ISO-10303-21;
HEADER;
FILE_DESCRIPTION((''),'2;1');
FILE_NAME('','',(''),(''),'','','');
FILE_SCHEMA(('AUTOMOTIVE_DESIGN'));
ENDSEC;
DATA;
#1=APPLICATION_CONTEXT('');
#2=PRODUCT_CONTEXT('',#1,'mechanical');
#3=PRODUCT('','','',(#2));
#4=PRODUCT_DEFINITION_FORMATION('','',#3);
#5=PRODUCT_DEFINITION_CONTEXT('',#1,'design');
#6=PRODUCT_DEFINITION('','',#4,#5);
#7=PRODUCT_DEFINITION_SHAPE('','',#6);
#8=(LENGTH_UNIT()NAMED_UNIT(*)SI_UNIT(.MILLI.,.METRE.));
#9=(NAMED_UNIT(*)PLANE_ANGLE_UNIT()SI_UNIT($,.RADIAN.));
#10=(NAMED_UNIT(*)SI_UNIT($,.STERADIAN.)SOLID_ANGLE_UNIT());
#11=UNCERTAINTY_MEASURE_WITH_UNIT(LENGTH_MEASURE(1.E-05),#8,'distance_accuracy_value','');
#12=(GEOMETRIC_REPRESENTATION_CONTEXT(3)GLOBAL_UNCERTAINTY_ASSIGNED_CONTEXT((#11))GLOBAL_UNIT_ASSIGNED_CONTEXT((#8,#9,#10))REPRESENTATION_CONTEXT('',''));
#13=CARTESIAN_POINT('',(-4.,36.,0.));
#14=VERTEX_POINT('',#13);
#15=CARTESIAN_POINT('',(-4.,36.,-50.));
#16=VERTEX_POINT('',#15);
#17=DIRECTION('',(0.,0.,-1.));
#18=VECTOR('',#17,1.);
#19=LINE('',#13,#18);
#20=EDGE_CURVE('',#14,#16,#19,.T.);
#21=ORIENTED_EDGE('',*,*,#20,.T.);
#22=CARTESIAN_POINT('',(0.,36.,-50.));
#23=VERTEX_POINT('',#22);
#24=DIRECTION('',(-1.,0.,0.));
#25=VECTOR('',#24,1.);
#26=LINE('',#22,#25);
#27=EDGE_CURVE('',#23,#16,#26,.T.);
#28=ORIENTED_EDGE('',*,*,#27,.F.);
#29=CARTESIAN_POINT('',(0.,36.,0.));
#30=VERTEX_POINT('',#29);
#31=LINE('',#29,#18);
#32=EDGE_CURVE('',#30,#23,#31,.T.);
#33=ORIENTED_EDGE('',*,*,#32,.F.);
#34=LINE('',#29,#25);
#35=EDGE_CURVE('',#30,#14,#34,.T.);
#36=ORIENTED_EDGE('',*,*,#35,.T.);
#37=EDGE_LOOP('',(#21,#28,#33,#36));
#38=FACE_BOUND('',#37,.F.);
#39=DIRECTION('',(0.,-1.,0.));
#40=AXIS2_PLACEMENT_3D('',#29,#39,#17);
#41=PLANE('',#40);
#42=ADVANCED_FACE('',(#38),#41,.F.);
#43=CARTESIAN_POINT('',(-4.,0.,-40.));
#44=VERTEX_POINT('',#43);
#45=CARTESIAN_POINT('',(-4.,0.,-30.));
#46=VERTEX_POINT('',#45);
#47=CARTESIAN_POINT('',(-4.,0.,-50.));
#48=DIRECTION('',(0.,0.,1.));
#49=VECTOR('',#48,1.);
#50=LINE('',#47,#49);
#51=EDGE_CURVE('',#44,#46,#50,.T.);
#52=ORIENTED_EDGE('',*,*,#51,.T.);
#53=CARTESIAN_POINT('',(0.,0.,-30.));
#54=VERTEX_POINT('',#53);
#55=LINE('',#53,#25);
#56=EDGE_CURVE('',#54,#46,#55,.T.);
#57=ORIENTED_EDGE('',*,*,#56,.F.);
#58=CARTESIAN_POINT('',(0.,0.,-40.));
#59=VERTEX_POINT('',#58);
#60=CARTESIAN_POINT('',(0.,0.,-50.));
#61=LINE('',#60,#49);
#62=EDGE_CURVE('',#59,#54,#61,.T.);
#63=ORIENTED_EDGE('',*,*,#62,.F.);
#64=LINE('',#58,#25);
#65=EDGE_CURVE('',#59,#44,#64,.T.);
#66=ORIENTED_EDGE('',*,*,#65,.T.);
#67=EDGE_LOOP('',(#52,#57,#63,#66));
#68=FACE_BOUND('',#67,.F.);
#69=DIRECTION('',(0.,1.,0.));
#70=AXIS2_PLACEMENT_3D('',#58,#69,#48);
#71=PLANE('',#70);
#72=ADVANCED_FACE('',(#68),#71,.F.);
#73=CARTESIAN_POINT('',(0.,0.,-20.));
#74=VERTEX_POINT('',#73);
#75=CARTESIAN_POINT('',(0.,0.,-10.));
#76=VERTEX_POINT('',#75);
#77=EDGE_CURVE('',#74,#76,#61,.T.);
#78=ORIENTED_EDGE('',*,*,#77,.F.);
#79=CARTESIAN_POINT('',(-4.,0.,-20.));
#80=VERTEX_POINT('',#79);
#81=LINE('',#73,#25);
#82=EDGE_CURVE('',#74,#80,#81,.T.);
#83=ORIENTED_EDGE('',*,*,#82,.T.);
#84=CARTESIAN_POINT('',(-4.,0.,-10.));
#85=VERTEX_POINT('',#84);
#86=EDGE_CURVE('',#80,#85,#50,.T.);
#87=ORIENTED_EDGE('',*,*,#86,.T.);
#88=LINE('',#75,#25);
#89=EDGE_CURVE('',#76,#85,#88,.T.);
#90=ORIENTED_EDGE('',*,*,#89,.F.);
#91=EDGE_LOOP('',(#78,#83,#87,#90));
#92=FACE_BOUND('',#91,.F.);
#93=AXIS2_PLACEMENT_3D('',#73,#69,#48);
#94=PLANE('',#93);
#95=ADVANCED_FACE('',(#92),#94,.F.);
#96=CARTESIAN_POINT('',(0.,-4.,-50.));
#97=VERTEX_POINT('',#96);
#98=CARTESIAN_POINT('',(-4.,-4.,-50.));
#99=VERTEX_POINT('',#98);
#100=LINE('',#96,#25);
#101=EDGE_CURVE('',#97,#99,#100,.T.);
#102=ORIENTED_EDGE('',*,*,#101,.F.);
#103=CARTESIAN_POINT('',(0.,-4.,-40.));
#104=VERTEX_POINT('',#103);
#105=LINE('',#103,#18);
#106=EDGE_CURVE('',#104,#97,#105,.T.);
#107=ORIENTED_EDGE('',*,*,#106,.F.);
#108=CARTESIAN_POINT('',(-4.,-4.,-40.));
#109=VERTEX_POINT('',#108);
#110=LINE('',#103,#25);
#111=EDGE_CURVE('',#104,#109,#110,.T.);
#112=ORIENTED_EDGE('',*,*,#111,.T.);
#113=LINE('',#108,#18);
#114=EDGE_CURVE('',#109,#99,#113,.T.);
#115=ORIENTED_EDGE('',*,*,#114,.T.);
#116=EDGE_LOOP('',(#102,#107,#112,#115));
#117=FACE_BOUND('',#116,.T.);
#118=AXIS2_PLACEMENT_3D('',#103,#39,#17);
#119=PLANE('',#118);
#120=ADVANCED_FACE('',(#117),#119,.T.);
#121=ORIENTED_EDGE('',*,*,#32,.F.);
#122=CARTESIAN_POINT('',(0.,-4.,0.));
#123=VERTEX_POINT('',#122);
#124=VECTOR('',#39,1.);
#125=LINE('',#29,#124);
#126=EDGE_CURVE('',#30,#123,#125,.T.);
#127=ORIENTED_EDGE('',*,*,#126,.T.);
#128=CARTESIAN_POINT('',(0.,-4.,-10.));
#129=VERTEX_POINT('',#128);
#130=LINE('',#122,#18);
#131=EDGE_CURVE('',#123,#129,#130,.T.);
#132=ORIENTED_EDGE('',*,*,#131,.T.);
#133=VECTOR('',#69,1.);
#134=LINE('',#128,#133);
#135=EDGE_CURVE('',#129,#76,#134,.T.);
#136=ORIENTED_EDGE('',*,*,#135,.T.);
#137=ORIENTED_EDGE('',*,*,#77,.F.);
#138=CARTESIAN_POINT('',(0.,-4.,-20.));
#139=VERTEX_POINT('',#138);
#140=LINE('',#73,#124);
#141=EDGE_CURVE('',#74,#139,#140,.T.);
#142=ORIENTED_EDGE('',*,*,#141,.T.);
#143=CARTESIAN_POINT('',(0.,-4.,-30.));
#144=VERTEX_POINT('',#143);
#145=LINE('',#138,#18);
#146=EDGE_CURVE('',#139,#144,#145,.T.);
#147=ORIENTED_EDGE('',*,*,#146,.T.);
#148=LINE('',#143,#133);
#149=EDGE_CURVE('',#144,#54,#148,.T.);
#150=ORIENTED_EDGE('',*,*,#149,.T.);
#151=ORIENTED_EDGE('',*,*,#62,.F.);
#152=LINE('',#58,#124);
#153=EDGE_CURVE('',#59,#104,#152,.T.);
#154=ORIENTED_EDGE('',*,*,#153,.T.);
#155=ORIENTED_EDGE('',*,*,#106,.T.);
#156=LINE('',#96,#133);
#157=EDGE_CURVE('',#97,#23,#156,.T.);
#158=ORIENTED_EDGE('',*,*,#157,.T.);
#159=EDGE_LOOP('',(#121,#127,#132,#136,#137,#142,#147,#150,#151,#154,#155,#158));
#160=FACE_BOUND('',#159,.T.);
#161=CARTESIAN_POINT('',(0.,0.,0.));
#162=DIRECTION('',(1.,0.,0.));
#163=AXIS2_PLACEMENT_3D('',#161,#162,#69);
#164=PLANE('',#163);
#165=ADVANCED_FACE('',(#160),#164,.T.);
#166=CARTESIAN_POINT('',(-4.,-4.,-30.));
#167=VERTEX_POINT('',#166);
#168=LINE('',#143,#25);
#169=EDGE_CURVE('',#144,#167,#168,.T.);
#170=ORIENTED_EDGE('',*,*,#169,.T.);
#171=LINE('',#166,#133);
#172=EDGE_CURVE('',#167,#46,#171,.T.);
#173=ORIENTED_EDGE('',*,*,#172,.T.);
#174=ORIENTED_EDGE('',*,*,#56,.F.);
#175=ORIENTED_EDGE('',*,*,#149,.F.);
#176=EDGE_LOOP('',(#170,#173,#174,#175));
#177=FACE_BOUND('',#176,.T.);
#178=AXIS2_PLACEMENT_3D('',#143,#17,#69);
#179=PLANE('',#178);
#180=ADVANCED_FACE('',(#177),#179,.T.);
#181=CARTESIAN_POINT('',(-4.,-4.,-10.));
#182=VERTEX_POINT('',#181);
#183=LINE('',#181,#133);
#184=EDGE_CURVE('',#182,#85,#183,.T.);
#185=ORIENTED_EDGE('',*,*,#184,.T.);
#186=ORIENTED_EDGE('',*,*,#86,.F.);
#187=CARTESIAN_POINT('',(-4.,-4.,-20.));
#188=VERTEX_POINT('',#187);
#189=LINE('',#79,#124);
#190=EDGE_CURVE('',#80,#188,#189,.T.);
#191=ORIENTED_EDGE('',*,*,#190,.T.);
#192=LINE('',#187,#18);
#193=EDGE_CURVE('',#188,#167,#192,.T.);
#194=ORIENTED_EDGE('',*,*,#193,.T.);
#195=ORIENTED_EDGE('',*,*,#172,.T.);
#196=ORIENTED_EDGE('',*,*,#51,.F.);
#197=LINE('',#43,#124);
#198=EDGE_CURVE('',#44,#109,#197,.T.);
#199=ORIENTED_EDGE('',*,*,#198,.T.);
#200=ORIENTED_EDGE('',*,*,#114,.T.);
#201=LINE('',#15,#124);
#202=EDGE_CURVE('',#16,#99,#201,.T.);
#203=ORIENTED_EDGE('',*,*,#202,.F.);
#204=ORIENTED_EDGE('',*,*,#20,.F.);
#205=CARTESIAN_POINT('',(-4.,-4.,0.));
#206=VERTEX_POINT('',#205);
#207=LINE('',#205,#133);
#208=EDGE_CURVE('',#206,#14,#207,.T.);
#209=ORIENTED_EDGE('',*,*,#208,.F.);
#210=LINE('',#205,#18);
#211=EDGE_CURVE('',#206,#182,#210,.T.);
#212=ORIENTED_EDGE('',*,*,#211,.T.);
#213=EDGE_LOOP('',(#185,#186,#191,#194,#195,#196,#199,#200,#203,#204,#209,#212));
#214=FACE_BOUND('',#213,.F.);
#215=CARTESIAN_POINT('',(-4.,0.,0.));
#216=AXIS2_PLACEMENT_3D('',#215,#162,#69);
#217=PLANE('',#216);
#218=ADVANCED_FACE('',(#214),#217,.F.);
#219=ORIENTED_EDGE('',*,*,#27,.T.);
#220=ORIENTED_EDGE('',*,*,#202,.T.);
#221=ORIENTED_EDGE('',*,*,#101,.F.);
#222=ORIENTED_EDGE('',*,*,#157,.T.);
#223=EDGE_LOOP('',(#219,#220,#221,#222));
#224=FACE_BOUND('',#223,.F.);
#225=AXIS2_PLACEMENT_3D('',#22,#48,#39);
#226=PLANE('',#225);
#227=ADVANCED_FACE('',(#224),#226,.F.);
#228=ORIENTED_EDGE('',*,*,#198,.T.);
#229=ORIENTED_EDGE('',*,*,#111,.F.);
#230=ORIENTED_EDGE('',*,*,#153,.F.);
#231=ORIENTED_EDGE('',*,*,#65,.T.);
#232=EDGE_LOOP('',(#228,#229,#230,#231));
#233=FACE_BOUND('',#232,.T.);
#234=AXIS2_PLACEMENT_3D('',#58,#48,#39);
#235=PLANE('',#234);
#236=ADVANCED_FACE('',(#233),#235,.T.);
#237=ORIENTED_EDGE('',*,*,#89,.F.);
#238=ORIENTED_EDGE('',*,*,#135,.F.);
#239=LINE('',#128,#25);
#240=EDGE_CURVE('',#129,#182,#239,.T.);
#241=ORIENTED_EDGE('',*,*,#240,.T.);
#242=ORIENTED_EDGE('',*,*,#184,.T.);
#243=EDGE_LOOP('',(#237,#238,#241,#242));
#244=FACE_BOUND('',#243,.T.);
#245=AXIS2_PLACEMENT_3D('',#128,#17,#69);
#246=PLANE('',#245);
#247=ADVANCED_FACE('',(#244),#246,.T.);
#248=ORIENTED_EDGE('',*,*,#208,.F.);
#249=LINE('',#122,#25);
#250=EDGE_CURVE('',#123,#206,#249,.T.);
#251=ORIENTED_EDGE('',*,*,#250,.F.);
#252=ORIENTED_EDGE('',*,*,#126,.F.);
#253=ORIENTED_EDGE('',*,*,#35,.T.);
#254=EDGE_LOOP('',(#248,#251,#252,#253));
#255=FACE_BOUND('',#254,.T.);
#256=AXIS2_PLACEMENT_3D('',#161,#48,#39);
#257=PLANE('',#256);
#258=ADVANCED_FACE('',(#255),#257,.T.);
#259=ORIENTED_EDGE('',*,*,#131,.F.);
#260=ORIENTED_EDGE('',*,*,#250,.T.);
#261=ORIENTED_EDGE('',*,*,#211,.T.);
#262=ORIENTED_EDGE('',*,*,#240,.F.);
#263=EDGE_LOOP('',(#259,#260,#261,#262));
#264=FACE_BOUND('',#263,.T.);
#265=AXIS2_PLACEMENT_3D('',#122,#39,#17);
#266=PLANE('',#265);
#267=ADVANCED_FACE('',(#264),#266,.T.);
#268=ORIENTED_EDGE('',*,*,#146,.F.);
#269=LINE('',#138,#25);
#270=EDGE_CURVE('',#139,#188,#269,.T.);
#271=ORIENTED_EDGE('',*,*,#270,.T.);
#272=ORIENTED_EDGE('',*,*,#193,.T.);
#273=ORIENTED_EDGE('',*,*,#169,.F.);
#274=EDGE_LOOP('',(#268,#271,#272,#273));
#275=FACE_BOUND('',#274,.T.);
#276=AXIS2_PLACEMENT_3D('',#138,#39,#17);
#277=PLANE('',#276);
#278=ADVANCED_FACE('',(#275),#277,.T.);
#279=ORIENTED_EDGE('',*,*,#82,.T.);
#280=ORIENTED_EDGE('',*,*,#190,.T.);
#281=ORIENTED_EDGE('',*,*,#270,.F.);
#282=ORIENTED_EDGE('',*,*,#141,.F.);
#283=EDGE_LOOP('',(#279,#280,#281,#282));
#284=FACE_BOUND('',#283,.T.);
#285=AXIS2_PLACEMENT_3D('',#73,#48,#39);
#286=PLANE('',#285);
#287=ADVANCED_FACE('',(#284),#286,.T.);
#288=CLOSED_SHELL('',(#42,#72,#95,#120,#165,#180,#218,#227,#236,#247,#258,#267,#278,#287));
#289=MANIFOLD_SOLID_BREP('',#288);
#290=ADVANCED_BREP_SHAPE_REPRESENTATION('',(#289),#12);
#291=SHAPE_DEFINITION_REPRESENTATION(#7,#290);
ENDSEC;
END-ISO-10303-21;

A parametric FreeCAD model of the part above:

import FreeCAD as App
import Part
import Sketcher
from FreeCAD import Vector


def add_polygon(sketch, points):
    """Adds a closed chain of lines whose ends are joined by coincident constraints."""
    first, n = sketch.GeometryCount, len(points)
    for a, b in zip(points, points[1:] + points[:1]):
        sketch.addGeometry(Part.LineSegment(App.Vector(*a, 0), App.Vector(*b, 0)), False)
    for i in range(n):
        sketch.addConstraint(Sketcher.Constraint("Coincident", first + i, 2, first + (i + 1) % n, 1))

doc = App.newDocument("Part")
body = doc.addObject("PartDesign::Body", "Body")

sketch1 = doc.addObject("Sketcher::SketchObject", "Sketch")
body.addObject(sketch1)
sketch1.AttachmentSupport = (doc.YZ_Plane, [""])
sketch1.MapMode = "FlatFace"
add_polygon(sketch1, [(-4, -10), (0, -10), (0, -20), (-4, -20), (-4, -30), (0, -30), (0, -40), (-4, -40), (-4, -50), (36, -50), (36, 0), (-4, 0)])
sketch1.addConstraint([
    Sketcher.Constraint("Horizontal", 0),
    Sketcher.Constraint("Vertical", 1),
    Sketcher.Constraint("Horizontal", 2),
    Sketcher.Constraint("Vertical", 3),
    Sketcher.Constraint("Horizontal", 4),
    Sketcher.Constraint("Vertical", 5),
    Sketcher.Constraint("Horizontal", 6),
    Sketcher.Constraint("Vertical", 7),
    Sketcher.Constraint("Horizontal", 8),
    Sketcher.Constraint("Vertical", 9),
    Sketcher.Constraint("Horizontal", 10),
    Sketcher.Constraint("Vertical", 11),
    Sketcher.Constraint("PointOnObject", 0, 2, -2),
    Sketcher.Constraint("PointOnObject", 4, 2, -2),
    Sketcher.Constraint("PointOnObject", 9, 2, -1),
    Sketcher.Constraint("Vertical", 3, 2, 6, 2),
    Sketcher.Constraint("Vertical", 7, 2, 10, 2),
    Sketcher.Constraint("Equal", 1, 3),
    Sketcher.Constraint("Equal", 3, 5),
    Sketcher.Constraint("Equal", 5, 7),
    Sketcher.Constraint("Equal", 7, 11),
    Sketcher.Constraint("DistanceX", 0, 1, 0, 2, 4.0),
    Sketcher.Constraint("DistanceY", 1, 2, 1, 1, 10.0),
    Sketcher.Constraint("DistanceX", -1, 1, 8, 2, 36.0),
])
pad1 = doc.addObject("PartDesign::Pad", "Pad")
body.addObject(pad1)
pad1.Profile = sketch1
pad1.Length = 4
pad1.Reversed = True

doc.recompute()
